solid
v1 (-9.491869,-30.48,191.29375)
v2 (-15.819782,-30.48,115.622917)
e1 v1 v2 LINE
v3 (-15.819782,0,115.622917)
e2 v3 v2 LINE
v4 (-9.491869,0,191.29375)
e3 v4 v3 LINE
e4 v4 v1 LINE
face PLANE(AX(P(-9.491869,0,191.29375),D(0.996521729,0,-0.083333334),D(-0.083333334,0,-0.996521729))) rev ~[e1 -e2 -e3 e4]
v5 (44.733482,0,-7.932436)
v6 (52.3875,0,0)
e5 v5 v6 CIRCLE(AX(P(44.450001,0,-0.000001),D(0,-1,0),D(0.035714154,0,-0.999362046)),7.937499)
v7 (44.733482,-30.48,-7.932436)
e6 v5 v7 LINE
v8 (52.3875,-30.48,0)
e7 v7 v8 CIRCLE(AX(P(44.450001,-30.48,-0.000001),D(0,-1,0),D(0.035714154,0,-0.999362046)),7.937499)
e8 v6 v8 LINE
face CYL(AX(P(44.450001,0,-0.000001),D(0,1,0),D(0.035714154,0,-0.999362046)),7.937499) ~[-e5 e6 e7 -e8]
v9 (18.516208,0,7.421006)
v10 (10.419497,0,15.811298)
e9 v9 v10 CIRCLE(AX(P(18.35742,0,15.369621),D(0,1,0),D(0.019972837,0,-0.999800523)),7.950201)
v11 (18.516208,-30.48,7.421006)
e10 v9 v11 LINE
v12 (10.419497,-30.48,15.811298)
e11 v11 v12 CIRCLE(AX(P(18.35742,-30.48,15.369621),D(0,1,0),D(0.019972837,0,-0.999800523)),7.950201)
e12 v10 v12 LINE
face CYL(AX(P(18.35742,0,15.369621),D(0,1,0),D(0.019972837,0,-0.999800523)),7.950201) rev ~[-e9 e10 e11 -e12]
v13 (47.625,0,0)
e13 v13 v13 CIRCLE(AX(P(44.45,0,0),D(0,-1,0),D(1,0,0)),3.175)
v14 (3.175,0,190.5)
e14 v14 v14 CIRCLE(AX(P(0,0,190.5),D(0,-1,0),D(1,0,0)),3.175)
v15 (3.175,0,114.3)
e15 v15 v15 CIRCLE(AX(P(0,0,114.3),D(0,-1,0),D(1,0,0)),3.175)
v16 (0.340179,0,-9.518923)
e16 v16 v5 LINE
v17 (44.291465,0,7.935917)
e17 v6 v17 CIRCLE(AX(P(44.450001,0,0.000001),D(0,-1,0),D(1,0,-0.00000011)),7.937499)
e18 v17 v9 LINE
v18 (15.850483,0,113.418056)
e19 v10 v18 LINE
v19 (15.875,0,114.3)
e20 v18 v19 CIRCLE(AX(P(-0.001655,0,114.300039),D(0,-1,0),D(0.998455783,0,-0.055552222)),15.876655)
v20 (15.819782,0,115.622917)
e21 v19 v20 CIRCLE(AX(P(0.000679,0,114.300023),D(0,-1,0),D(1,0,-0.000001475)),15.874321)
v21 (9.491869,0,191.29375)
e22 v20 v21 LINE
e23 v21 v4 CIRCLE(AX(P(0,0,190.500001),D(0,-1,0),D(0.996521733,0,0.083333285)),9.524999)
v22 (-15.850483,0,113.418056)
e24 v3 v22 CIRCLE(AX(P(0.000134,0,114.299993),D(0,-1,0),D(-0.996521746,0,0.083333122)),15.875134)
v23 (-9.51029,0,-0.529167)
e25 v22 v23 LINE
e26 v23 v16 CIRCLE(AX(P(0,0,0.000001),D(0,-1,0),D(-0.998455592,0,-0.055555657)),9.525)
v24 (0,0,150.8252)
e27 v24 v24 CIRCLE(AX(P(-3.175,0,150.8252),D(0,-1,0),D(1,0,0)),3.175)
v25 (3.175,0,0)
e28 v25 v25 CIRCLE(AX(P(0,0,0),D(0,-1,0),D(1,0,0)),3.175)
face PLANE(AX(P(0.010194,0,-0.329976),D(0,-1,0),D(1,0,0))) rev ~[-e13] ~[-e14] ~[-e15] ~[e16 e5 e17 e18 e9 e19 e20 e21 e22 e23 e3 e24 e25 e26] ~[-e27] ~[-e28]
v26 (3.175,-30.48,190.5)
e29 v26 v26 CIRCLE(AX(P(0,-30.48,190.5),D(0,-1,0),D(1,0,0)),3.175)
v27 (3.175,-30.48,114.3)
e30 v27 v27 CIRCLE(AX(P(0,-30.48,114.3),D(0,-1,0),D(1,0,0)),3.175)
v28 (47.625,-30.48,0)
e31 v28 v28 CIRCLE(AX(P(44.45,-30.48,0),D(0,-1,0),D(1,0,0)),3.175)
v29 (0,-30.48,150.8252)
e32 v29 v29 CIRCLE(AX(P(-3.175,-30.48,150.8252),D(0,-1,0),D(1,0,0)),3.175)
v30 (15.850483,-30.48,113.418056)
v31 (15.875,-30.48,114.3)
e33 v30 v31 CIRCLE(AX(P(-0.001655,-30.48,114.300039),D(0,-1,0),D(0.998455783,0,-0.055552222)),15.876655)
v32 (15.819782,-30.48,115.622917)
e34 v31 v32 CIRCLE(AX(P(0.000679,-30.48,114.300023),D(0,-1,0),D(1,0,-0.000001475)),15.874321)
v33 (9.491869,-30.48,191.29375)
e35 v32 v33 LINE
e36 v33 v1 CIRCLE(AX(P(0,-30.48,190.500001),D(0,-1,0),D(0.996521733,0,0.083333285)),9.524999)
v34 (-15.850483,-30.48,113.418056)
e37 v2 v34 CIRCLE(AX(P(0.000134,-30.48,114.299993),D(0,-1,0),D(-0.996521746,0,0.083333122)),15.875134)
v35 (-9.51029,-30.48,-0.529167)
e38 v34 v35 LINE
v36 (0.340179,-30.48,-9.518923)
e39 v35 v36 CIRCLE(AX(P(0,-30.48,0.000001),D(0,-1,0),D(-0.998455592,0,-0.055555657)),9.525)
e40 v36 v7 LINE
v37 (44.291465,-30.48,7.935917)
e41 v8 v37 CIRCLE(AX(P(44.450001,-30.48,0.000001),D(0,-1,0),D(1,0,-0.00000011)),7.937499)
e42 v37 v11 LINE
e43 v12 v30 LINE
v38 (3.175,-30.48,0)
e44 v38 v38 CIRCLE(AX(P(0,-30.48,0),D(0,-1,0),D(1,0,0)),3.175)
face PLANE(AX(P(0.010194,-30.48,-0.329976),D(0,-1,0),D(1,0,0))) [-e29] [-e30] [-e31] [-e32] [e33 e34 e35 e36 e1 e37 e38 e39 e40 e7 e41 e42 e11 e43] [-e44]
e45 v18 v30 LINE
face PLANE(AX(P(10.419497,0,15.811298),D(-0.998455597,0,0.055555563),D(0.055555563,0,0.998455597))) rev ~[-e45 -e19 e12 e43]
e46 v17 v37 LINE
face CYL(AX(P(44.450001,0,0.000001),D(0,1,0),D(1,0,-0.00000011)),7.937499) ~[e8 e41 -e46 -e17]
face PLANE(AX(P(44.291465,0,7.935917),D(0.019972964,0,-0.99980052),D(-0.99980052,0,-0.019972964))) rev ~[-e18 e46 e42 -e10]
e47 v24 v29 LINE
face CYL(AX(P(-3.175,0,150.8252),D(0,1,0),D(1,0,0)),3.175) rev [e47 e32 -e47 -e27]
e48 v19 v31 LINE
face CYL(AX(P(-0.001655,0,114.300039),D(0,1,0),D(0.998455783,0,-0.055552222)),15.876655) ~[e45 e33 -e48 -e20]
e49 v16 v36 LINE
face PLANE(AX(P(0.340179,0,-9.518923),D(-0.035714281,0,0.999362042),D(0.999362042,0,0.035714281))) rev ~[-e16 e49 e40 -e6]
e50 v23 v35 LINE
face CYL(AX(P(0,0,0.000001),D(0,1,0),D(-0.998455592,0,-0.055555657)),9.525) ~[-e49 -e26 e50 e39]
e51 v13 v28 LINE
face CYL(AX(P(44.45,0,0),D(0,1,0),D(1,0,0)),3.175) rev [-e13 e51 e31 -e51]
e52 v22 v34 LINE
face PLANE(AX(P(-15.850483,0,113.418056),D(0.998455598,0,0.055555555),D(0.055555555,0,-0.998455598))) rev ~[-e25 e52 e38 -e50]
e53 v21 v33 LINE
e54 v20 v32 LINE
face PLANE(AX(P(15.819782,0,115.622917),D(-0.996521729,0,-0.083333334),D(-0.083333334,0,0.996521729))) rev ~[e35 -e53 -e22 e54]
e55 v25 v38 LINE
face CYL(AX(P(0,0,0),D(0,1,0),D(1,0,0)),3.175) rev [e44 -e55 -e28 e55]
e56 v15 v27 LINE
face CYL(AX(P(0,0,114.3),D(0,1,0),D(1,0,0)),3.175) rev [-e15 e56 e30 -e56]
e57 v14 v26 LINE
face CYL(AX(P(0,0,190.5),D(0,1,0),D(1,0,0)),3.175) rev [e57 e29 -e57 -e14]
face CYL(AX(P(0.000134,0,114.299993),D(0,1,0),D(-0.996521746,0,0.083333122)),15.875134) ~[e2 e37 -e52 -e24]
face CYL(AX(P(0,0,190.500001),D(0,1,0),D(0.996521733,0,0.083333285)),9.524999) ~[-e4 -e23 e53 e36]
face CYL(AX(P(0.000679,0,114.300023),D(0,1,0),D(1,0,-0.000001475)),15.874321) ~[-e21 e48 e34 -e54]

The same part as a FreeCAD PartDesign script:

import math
import FreeCAD as App
import Part
import Sketcher
Q = App.Units.Quantity

doc = App.newDocument("Part")
body = doc.addObject("PartDesign::Body", "Body")

# Sketch on XZ plane
sketch1 = doc.addObject("Sketcher::SketchObject", "Sketch")
body.addObject(sketch1)
sketch1.AttachmentSupport = (doc.XZ_Plane, [""])
sketch1.MapMode = "FlatFace"
sketch1.addGeometry([
    Part.ArcOfCircle(Part.Circle(App.Vector(0, 0, 0), App.Vector(0, 0, 1), 9.5), math.radians(-177), math.radians(-88)),  # 0
    Part.LineSegment(App.Vector(0.3, -9.5, 0), App.Vector(44.7, -7.9, 0)),  # 1
    Part.ArcOfCircle(Part.Circle(App.Vector(44.5, 0, 0), App.Vector(0, 0, 1), 7.9), math.radians(-88), math.radians(0)),  # 2
    Part.ArcOfCircle(Part.Circle(App.Vector(44.5, 0, 0), App.Vector(0, 0, 1), 7.9), math.radians(0), math.radians(91)),  # 3
    Part.LineSegment(App.Vector(44.3, 7.9, 0), App.Vector(18.5, 7.4, 0)),  # 4
    Part.ArcOfCircle(Part.Circle(App.Vector(18.4, 15.4, 0), App.Vector(0, 0, 1), 8), math.radians(177), math.radians(271)),  # 5
    Part.LineSegment(App.Vector(10.4, 15.8, 0), App.Vector(15.9, 113.4, 0)),  # 6
    Part.ArcOfCircle(Part.Circle(App.Vector(0, 114.3, 0), App.Vector(0, 0, 1), 15.9), math.radians(-3.18), math.radians(0)),  # 7
    Part.ArcOfCircle(Part.Circle(App.Vector(0, 114.3, 0), App.Vector(0, 0, 1), 15.9), math.radians(0), math.radians(4.78)),  # 8
    Part.LineSegment(App.Vector(15.8, 115.6, 0), App.Vector(9.5, 191.3, 0)),  # 9
    Part.ArcOfCircle(Part.Circle(App.Vector(0, 190.5, 0), App.Vector(0, 0, 1), 9.5), math.radians(5), math.radians(175)),  # 10
    Part.LineSegment(App.Vector(-9.5, 191.3, 0), App.Vector(-15.8, 115.6, 0)),  # 11
    Part.ArcOfCircle(Part.Circle(App.Vector(0, 114.3, 0), App.Vector(0, 0, 1), 15.9), math.radians(175.22), math.radians(183.18)),  # 12
    Part.LineSegment(App.Vector(-15.9, 113.4, 0), App.Vector(-9.5, -0.5, 0)),  # 13
    Part.Circle(App.Vector(0, 0, 0), App.Vector(0, 0, 1), 3.2),  # 14
    Part.Circle(App.Vector(44.5, 0, 0), App.Vector(0, 0, 1), 3.2),  # 15
    Part.Circle(App.Vector(0, 114.3, 0), App.Vector(0, 0, 1), 3.2),  # 16
    Part.Circle(App.Vector(-3.2, 150.8, 0), App.Vector(0, 0, 1), 3.2),  # 17
    Part.Circle(App.Vector(0, 190.5, 0), App.Vector(0, 0, 1), 3.2),  # 18
], False)
sketch1.addConstraint([
    Sketcher.Constraint("Tangent", 0, 2, 1, 1),
    Sketcher.Constraint("Tangent", 1, 2, 2, 1),
    Sketcher.Constraint("Tangent", 2, 2, 3, 1),
    Sketcher.Constraint("Tangent", 3, 2, 4, 1),
    Sketcher.Constraint("Tangent", 4, 2, 5, 2),
    Sketcher.Constraint("Tangent", 5, 1, 6, 1),
    Sketcher.Constraint("Coincident", 6, 2, 7, 1),
    Sketcher.Constraint("Tangent", 7, 2, 8, 1),
    Sketcher.Constraint("Coincident", 8, 2, 9, 1),
    Sketcher.Constraint("Tangent", 9, 2, 10, 1),
    Sketcher.Constraint("Tangent", 10, 2, 11, 1),
    Sketcher.Constraint("Tangent", 11, 2, 12, 1),
    Sketcher.Constraint("Tangent", 12, 2, 13, 1),
    Sketcher.Constraint("Tangent", 13, 2, 0, 1),
    Sketcher.Constraint("Coincident", 0, 3, -1, 1),
    Sketcher.Constraint("Coincident", 14, 3, -1, 1),
    Sketcher.Constraint("Coincident", 15, 3, 2, 3),
    Sketcher.Constraint("Coincident", 18, 3, 10, 3),
    Sketcher.Constraint("Equal", 2, 3),
    Sketcher.Constraint("Equal", 0, 10),
    Sketcher.Constraint("Equal", 14, 15),
    Sketcher.Constraint("Equal", 15, 16),
    Sketcher.Constraint("Equal", 16, 17),
    Sketcher.Constraint("Equal", 17, 18),
    Sketcher.Constraint("Symmetric", 9, 2, 10, 2, -2),
    Sketcher.Constraint("Symmetric", 6, 2, 12, 2, -2),
    Sketcher.Constraint("PointOnObject", 2, 3, -1),
    Sketcher.Constraint("PointOnObject", 16, 3, -2),
    Sketcher.Constraint("PointOnObject", 2, 2, -1),
    Sketcher.Constraint("Horizontal", 16, 3, 7, 2),
    Sketcher.Constraint("Horizontal", 8, 2, 11, 2),
    Sketcher.Constraint("Diameter", 14, Q("0.25 in")),
    Sketcher.Constraint("Radius", 0, Q("0.375 in")),
    Sketcher.Constraint("Radius", 2, Q("0.3125 in")),
    Sketcher.Constraint("Radius", 5, Q("0.313 in")),
    Sketcher.Constraint("DistanceY", 16, 3, 10, 3, Q("3 in")),
    Sketcher.Constraint("DistanceY", -1, 1, 10, 3, Q("7.5 in")),
    Sketcher.Constraint("DistanceX", -1, 1, 2, 3, Q("1.75 in")),
    Sketcher.Constraint("DistanceX", 17, 3, -1, 1, Q("0.125 in")),
    Sketcher.Constraint("DistanceY", -1, 1, 17, 3, Q("5.938 in")),
    Sketcher.Constraint("DistanceX", -1, 1, 7, 2, Q("0.625 in")),
    Sketcher.Constraint("DistanceY", -1, 1, 9, 2, Q("7.53125 in")),
    Sketcher.Constraint("Radius", 8, 15.874321),
    Sketcher.Constraint("Radius", 7, 15.876655),
    Sketcher.Constraint("Radius", 12, 15.875134),
    Sketcher.Constraint("Distance", 4, 25.7804),
    Sketcher.Constraint("DistanceY", -1, 1, 5, 1, 15.811298),
])
pad1 = doc.addObject("PartDesign::Pad", "Pad")
body.addObject(pad1)
pad1.Profile = sketch1
pad1.Length = Q("1.2 in")

doc.recompute()
